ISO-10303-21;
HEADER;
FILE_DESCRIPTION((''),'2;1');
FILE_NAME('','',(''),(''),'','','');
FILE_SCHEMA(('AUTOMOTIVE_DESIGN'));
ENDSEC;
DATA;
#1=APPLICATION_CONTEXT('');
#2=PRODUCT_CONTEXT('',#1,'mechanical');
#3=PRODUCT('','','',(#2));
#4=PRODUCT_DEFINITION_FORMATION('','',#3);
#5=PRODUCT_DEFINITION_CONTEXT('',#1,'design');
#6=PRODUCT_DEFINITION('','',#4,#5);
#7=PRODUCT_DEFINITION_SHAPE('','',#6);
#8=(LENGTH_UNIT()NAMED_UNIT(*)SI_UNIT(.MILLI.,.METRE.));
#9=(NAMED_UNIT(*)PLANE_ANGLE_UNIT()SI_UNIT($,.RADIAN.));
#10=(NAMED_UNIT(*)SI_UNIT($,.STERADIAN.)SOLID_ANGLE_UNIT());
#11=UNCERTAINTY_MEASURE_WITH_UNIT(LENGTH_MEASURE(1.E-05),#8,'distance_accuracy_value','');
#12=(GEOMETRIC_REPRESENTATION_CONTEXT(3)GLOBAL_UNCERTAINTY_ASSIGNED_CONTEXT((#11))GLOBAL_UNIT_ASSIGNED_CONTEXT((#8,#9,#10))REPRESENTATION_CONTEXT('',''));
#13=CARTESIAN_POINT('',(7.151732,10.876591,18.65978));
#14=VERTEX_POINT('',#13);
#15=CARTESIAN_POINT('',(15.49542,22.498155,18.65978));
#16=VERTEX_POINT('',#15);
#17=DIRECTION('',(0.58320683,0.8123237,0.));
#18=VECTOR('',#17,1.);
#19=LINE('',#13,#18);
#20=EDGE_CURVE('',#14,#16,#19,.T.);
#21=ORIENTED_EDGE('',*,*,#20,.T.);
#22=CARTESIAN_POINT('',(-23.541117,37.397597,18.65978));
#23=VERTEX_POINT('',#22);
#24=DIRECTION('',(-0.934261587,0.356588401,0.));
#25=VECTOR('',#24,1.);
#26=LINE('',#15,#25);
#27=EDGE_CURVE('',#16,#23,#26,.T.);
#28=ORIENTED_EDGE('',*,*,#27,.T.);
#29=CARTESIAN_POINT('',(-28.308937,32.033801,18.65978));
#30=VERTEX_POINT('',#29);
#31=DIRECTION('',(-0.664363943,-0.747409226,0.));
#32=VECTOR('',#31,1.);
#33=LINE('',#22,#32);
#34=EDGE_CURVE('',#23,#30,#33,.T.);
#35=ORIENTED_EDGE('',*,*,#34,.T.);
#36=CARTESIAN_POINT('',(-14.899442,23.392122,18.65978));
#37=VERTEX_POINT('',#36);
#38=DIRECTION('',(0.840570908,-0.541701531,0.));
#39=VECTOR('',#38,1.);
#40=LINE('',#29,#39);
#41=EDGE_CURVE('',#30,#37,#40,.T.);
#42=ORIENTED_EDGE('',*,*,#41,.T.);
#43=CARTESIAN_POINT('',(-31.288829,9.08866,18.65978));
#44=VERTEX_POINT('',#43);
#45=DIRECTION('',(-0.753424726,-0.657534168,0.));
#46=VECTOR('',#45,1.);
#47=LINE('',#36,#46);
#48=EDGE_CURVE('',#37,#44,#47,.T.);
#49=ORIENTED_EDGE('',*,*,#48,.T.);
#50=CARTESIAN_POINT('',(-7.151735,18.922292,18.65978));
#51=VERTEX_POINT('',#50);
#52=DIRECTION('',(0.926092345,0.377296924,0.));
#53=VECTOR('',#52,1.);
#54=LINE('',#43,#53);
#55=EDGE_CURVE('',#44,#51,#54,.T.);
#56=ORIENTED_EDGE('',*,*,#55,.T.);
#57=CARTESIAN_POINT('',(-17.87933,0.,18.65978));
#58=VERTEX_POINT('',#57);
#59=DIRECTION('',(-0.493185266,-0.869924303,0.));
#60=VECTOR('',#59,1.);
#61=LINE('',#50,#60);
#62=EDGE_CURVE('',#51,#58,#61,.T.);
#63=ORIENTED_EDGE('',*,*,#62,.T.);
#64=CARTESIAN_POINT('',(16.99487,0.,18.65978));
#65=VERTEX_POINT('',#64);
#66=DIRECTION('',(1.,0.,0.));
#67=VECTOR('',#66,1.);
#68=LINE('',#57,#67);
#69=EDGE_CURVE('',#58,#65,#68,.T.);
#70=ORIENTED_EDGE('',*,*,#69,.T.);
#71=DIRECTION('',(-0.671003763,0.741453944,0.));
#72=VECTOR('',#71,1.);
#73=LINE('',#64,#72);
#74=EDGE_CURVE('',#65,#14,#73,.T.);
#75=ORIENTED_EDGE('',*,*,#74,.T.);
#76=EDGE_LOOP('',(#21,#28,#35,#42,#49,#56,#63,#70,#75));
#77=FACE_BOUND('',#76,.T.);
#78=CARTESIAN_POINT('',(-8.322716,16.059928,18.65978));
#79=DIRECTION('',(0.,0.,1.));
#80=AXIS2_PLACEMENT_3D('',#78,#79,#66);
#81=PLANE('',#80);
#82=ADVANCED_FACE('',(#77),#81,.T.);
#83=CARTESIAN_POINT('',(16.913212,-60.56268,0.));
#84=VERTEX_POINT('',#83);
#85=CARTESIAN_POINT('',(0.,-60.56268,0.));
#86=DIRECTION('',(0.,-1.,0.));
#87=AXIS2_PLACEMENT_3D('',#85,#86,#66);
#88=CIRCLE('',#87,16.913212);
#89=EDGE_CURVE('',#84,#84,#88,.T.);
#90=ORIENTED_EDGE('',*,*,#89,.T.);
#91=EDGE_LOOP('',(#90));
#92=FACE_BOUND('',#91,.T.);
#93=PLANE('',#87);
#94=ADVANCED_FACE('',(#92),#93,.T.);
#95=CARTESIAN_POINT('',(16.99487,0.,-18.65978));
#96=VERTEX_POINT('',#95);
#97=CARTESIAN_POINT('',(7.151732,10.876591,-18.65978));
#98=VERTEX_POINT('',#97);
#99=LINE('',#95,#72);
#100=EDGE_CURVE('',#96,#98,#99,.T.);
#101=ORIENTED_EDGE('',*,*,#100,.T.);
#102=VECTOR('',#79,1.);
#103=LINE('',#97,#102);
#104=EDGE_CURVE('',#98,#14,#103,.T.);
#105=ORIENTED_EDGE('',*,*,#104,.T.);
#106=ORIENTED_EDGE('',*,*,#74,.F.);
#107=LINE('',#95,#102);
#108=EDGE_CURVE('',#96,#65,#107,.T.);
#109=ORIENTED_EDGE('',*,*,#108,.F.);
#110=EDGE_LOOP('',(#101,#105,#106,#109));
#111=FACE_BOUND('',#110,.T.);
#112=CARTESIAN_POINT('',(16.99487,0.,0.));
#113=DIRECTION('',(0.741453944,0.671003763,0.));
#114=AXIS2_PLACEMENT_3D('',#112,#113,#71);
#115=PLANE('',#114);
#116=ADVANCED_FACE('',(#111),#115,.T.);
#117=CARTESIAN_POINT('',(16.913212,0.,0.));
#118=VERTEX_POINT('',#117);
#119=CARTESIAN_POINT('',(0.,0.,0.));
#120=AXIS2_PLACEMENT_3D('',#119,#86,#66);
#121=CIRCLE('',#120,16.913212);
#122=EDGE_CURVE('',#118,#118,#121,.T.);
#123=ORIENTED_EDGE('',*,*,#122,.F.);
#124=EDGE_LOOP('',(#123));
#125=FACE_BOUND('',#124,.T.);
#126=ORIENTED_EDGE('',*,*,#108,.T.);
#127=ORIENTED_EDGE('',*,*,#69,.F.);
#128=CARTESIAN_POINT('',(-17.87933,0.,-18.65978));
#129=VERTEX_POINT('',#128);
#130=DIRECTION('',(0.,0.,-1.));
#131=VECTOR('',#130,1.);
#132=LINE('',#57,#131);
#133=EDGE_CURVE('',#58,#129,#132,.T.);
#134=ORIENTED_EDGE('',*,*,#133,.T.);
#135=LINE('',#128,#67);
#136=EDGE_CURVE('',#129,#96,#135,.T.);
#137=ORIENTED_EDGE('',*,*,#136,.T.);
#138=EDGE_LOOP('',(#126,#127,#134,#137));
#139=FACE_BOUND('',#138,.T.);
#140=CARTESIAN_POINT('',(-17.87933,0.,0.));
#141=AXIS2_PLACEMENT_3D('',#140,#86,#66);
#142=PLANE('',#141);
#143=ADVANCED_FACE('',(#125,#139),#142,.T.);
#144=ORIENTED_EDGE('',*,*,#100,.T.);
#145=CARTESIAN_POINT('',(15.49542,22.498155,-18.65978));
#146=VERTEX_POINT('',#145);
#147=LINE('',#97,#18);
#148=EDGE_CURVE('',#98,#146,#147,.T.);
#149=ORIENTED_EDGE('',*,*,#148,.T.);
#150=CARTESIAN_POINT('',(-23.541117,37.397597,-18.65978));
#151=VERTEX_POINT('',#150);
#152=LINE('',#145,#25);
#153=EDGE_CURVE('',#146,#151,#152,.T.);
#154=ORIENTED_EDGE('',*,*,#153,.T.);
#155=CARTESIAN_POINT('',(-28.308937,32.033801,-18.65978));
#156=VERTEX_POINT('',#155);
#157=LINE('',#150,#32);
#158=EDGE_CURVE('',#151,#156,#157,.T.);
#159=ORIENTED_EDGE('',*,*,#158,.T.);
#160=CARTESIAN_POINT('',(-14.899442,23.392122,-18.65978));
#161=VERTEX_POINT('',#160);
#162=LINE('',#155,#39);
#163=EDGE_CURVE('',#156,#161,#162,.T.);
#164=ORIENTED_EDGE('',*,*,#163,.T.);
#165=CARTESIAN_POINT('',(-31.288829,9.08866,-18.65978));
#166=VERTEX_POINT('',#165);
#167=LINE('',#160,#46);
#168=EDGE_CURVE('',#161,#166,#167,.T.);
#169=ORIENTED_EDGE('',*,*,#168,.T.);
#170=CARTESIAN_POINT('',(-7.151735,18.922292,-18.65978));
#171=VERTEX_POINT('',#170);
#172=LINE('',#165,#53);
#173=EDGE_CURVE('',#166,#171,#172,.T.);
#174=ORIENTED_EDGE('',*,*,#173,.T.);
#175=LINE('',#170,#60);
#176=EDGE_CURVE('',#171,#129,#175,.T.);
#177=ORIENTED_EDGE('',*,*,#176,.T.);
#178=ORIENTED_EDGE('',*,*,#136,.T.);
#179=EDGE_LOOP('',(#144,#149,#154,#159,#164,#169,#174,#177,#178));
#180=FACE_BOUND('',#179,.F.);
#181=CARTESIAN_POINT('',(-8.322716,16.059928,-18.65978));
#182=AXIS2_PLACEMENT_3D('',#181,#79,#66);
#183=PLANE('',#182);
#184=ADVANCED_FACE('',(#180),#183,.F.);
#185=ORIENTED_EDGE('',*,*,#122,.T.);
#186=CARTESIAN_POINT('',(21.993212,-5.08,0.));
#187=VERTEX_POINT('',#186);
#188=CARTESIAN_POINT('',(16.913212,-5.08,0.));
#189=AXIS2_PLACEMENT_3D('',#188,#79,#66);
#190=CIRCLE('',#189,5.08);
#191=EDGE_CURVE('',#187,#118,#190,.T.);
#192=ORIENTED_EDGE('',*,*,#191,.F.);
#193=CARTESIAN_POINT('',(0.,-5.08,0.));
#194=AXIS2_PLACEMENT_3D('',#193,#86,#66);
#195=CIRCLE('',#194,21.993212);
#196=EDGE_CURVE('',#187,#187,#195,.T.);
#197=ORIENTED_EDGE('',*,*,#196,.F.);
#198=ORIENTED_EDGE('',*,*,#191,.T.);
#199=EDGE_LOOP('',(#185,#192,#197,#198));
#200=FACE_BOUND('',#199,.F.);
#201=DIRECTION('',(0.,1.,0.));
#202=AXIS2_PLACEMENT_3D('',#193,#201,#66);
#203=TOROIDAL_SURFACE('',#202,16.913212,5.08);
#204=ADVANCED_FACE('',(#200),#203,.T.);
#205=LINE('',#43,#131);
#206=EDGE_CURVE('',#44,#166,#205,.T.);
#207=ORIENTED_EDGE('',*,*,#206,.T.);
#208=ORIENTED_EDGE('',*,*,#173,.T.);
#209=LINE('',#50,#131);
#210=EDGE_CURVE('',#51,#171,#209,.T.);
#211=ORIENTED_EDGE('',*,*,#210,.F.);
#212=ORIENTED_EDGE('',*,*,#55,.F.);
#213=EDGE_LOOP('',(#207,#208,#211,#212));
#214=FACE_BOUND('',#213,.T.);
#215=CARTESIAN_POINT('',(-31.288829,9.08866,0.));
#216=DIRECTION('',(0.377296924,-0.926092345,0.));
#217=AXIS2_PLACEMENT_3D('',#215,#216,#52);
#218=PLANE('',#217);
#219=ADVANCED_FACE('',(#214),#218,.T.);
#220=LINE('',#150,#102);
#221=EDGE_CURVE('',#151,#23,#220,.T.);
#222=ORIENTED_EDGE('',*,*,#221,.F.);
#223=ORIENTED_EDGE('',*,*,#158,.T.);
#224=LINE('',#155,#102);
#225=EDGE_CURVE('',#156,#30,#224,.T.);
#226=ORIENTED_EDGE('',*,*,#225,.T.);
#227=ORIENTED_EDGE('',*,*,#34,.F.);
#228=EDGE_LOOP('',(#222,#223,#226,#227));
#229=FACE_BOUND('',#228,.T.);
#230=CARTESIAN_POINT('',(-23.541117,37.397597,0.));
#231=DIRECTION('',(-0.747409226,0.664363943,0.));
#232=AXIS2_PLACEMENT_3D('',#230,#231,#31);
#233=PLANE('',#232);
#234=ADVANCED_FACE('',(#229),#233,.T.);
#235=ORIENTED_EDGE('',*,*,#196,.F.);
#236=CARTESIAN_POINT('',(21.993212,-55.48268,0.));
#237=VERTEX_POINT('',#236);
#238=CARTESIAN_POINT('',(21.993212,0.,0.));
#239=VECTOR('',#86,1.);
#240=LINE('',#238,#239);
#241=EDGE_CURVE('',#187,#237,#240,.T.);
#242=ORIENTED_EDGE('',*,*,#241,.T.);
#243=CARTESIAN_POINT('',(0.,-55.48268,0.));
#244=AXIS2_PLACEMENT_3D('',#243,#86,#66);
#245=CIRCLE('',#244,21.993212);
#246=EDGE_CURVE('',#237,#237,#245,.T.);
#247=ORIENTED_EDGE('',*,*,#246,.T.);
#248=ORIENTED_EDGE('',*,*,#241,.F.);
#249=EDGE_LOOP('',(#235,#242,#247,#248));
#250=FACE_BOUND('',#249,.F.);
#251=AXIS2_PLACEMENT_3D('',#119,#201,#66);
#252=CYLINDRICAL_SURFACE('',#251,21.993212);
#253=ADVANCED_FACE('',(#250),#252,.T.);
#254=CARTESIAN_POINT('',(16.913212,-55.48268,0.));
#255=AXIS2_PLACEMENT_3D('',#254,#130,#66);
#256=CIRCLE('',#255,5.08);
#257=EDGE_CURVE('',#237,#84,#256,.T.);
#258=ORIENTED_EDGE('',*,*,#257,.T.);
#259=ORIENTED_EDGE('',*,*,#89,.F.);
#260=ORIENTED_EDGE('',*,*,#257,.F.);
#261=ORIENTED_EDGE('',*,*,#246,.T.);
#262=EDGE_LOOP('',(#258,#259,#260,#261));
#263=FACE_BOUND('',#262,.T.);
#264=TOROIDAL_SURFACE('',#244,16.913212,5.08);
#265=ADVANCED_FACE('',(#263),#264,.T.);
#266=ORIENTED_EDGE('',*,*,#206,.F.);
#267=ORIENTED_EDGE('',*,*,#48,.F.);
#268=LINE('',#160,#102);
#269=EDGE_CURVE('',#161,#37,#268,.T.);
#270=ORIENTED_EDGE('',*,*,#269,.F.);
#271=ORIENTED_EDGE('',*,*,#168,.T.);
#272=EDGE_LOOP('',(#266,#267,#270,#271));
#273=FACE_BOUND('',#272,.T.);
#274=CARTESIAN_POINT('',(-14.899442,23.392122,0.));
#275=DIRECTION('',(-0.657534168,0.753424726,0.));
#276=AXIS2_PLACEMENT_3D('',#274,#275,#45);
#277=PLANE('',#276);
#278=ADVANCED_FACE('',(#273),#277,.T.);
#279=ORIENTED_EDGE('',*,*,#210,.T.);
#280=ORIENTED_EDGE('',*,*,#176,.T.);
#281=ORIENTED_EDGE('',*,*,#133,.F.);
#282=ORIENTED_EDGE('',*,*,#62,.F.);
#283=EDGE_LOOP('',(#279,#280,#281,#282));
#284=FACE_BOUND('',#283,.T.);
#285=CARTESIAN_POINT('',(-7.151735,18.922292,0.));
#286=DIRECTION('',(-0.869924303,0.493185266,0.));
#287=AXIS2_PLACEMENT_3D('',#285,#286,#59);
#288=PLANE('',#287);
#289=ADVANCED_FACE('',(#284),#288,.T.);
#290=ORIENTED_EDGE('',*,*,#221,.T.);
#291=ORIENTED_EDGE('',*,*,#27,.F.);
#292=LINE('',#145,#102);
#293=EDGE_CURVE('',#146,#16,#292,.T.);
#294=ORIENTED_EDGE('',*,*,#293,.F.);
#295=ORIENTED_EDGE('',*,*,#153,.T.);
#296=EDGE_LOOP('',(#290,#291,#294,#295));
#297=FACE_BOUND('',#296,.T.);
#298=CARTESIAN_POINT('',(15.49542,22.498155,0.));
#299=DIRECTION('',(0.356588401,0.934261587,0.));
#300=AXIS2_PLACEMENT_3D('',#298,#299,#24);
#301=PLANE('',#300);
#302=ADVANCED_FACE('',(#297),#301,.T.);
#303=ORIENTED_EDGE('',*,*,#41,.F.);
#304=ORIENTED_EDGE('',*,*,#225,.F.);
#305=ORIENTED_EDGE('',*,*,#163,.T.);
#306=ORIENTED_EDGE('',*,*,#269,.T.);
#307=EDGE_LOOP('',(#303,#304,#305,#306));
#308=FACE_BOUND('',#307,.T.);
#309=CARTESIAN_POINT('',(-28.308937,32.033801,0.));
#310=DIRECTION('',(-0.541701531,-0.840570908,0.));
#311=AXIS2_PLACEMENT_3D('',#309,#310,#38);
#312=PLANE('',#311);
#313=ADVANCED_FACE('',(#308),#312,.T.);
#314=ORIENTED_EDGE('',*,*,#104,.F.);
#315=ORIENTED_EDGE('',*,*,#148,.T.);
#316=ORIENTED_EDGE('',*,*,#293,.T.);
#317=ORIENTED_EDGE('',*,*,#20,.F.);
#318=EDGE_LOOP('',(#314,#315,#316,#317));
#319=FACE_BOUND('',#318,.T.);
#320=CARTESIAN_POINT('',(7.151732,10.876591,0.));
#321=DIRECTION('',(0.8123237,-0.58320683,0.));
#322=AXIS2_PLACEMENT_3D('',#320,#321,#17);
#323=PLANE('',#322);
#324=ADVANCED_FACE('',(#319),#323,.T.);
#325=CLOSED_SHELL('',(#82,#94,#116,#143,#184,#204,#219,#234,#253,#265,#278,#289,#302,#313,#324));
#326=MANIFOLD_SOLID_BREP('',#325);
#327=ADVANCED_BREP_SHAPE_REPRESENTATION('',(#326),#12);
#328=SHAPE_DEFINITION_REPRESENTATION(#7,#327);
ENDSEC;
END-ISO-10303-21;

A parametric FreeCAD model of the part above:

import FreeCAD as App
import Part
import Sketcher
from FreeCAD import Vector
Q = App.Units.Quantity


def add_polygon(sketch, points):
    """Adds a closed chain of lines whose ends are joined by coincident constraints."""
    first, n = sketch.GeometryCount, len(points)
    for a, b in zip(points, points[1:] + points[:1]):
        sketch.addGeometry(Part.LineSegment(App.Vector(*a, 0), App.Vector(*b, 0)), False)
    for i in range(n):
        sketch.addConstraint(Sketcher.Constraint("Coincident", first + i, 2, first + (i + 1) % n, 1))

doc = App.newDocument("Part")
params = doc.addObject("Spreadsheet::Sheet", "Params")
for row, (alias, value) in enumerate([
    ("pad1_length", "60.56268 mm"),
    ("fillet_radius", "0.2 in"),
    ("sketch2_width", "1.373 in"),
    ("pad2_length", "37.31956 mm"),
], start=1):
    params.set(f"A{row}", alias)
    params.set(f"B{row}", "=" + value)
    params.setAlias(f"B{row}", alias)

body = doc.addObject("PartDesign::Body", "Body")

sketch1 = doc.addObject("Sketcher::SketchObject", "Sketch")
body.addObject(sketch1)
sketch1.AttachmentSupport = (doc.XZ_Plane, [""])
sketch1.MapMode = "FlatFace"
sketch1.addGeometry(Part.Circle(Vector(0, 0, 0), Vector(0, 0, 1), 21.993212), False)
sketch1.addConstraint([
    Sketcher.Constraint("Coincident", 0, 3, -1, 1),
    Sketcher.Constraint("Diameter", 0, Q("43.986424 mm")),
])
pad1 = doc.addObject("PartDesign::Pad", "Pad")
body.addObject(pad1)
pad1.Profile = sketch1
pad1.setExpression("Length", "Params.pad1_length")
doc.recompute()

fillet = doc.addObject("PartDesign::Fillet", "Fillet")
body.addObject(fillet)
fillet.Base = (pad1, ["Edge1"])
fillet.UseAllEdges = True
fillet.setExpression("Radius", "Params.fillet_radius")

sketch2 = doc.addObject("Sketcher::SketchObject", "Sketch001")
body.addObject(sketch2)
sketch2.AttachmentSupport = (doc.XY_Plane, [""])
sketch2.MapMode = "FlatFace"
add_polygon(sketch2, [(-17.87933, 0), (16.99487, 0), (7.151732, 10.876591), (15.49542, 22.498155), (-23.541117, 37.397597), (-28.308937, 32.033801), (-14.899442, 23.392122), (-31.288829, 9.08866), (-7.151735, 18.922292)])
sketch2.addConstraint([
    Sketcher.Constraint("Horizontal", 0),
    Sketcher.Constraint("PointOnObject", 0, 2, -1),
    Sketcher.Constraint("DistanceX", 0, 1, 0, 2, Q("1.373 in")),
    Sketcher.Constraint("DistanceY", -1, 1, 4, 2, Q("32.033801 mm")),
    Sketcher.Constraint("DistanceY", 1, 2, 7, 2, Q("8.045701 mm")),
    Sketcher.Constraint("DistanceX", 4, 2, 7, 2, Q("21.157202 mm")),
    Sketcher.Constraint("DistanceX", 6, 2, 8, 2, Q("13.409499 mm")),
    Sketcher.Constraint("Distance", 4, Q("7.176518 mm")),
    Sketcher.Constraint("DistanceX", -1, 1, 0, 2, Q("16.99487 mm")),
    Sketcher.Constraint("DistanceY", -1, 1, 1, 2, Q("10.876591 mm")),
    Sketcher.Constraint("DistanceX", -1, 1, 2, 2, Q("15.49542 mm")),
    Sketcher.Constraint("DistanceY", -1, 1, 6, 2, Q("9.08866 mm")),
    Sketcher.Constraint("DistanceX", 3, 2, 1, 2, Q("30.692849 mm")),
    Sketcher.Constraint("DistanceY", 2, 2, 3, 2, Q("14.899442 mm")),
    Sketcher.Constraint("DistanceX", 4, 2, 3, 2, Q("4.76782 mm")),
    Sketcher.Constraint("DistanceY", 5, 2, 4, 2, Q("8.641679 mm")),
    Sketcher.Constraint("DistanceX", 5, 2, 2, 2, Q("30.394862 mm")),
    Sketcher.Constraint("DistanceX", 6, 2, 4, 2, Q("2.979892 mm")),
])
sketch2.setExpression("Constraints[11]", "Params.sketch2_width")
pad2 = doc.addObject("PartDesign::Pad", "Pad001")
body.addObject(pad2)
pad2.Profile = sketch2
pad2.setExpression("Length", "Params.pad2_length")
pad2.Midplane = True

doc.recompute()
